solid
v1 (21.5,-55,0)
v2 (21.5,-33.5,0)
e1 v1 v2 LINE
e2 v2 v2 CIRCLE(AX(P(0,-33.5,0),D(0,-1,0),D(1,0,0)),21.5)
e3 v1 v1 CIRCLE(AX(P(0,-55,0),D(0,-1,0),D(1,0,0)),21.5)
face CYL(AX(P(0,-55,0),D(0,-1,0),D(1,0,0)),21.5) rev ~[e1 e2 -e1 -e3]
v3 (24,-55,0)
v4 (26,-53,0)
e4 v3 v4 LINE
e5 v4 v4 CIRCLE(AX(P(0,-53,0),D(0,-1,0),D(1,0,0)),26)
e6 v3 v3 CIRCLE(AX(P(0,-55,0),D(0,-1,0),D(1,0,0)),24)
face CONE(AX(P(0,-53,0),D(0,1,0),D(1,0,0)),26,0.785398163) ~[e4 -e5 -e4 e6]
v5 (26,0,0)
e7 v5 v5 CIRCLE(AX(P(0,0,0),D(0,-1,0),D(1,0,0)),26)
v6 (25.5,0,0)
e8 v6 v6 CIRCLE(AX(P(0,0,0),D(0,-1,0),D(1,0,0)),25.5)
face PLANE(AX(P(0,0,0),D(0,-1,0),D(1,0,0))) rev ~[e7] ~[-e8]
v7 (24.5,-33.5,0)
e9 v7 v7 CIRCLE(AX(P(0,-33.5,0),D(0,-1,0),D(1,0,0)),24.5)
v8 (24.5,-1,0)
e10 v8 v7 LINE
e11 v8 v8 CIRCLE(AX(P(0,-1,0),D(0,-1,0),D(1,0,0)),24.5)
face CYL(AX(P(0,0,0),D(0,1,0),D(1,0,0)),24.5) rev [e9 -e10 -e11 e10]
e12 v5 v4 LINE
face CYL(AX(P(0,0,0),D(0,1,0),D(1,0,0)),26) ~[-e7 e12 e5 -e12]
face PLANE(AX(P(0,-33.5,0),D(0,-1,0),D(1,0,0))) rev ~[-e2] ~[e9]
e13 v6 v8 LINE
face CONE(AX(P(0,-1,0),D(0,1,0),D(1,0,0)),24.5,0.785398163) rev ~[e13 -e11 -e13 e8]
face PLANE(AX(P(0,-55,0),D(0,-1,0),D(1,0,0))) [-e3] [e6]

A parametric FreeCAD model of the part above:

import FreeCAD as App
import Part
import Sketcher
from FreeCAD import Vector
Q = App.Units.Quantity


def edges_at(feature, points):
    """Names of the edges that pass closest to the given points."""
    edges = feature.Shape.Edges
    near = lambda p: min(range(len(edges)), key=lambda i: edges[i].distToShape(Part.Vertex(*p))[0])
    return sorted({f"Edge{near(p) + 1}" for p in points})

doc = App.newDocument("Part")
body = doc.addObject("PartDesign::Body", "Body")

# Sketch on XZ plane
sketch1 = body.newObject("Sketcher::SketchObject", "Sketch")
sketch1.AttachmentSupport = (doc.getObject("XZ_Plane"), [""])
sketch1.MapMode = "FlatFace"
sketch1.addGeometry([
    Part.Circle(Vector(0, 0, 0), Vector(0, 0, 1), 26),
    Part.Circle(Vector(0, 0, 0), Vector(0, 0, 1), 24.5),
], False)
sketch1.addConstraint([
    Sketcher.Constraint("Coincident", 0, 3, -1, 1),
    Sketcher.Constraint("Coincident", 1, 3, -1, 1),
    Sketcher.Constraint("Diameter", 0, Q("52 mm")),
    Sketcher.Constraint("Diameter", 1, Q("49 mm")),
])
pad1 = body.newObject("PartDesign::Pad", "Pad")
pad1.Profile = sketch1
pad1.Length = 55

# Sketch on XZ plane
sketch2 = body.newObject("Sketcher::SketchObject", "Sketch001")
sketch2.AttachmentSupport = (doc.getObject("XZ_Plane"), [""])
sketch2.MapMode = "FlatFace"
sketch2.AttachmentOffset = App.Placement(Vector(0, 0, 55), App.Rotation())
sketch2.addGeometry([
    Part.Circle(Vector(0, 0, 0), Vector(0, 0, 1), 24.5),
    Part.Circle(Vector(0, 0, 0), Vector(0, 0, 1), 21.5),
], False)
sketch2.addConstraint([
    Sketcher.Constraint("Coincident", 0, 3, -1, 1),
    Sketcher.Constraint("Coincident", 1, 3, -1, 1),
    Sketcher.Constraint("Diameter", 0, Q("49 mm")),
    Sketcher.Constraint("Diameter", 1, Q("43 mm")),
])
pad2 = body.newObject("PartDesign::Pad", "Pad001")
pad2.Profile = sketch2
pad2.Length = 21.5
pad2.Reversed = True
doc.recompute()

chamfer = body.newObject("PartDesign::Chamfer", "Chamfer")
chamfer.Base = (pad2, edges_at(pad2, [(-26, -55, 0)]))
chamfer.Size = 2
doc.recompute()

chamfer2 = body.newObject("PartDesign::Chamfer", "Chamfer001")
chamfer2.Base = (chamfer, edges_at(chamfer, [(-24.5, 0, 0)]))
chamfer2.Size = 1

doc.recompute()
